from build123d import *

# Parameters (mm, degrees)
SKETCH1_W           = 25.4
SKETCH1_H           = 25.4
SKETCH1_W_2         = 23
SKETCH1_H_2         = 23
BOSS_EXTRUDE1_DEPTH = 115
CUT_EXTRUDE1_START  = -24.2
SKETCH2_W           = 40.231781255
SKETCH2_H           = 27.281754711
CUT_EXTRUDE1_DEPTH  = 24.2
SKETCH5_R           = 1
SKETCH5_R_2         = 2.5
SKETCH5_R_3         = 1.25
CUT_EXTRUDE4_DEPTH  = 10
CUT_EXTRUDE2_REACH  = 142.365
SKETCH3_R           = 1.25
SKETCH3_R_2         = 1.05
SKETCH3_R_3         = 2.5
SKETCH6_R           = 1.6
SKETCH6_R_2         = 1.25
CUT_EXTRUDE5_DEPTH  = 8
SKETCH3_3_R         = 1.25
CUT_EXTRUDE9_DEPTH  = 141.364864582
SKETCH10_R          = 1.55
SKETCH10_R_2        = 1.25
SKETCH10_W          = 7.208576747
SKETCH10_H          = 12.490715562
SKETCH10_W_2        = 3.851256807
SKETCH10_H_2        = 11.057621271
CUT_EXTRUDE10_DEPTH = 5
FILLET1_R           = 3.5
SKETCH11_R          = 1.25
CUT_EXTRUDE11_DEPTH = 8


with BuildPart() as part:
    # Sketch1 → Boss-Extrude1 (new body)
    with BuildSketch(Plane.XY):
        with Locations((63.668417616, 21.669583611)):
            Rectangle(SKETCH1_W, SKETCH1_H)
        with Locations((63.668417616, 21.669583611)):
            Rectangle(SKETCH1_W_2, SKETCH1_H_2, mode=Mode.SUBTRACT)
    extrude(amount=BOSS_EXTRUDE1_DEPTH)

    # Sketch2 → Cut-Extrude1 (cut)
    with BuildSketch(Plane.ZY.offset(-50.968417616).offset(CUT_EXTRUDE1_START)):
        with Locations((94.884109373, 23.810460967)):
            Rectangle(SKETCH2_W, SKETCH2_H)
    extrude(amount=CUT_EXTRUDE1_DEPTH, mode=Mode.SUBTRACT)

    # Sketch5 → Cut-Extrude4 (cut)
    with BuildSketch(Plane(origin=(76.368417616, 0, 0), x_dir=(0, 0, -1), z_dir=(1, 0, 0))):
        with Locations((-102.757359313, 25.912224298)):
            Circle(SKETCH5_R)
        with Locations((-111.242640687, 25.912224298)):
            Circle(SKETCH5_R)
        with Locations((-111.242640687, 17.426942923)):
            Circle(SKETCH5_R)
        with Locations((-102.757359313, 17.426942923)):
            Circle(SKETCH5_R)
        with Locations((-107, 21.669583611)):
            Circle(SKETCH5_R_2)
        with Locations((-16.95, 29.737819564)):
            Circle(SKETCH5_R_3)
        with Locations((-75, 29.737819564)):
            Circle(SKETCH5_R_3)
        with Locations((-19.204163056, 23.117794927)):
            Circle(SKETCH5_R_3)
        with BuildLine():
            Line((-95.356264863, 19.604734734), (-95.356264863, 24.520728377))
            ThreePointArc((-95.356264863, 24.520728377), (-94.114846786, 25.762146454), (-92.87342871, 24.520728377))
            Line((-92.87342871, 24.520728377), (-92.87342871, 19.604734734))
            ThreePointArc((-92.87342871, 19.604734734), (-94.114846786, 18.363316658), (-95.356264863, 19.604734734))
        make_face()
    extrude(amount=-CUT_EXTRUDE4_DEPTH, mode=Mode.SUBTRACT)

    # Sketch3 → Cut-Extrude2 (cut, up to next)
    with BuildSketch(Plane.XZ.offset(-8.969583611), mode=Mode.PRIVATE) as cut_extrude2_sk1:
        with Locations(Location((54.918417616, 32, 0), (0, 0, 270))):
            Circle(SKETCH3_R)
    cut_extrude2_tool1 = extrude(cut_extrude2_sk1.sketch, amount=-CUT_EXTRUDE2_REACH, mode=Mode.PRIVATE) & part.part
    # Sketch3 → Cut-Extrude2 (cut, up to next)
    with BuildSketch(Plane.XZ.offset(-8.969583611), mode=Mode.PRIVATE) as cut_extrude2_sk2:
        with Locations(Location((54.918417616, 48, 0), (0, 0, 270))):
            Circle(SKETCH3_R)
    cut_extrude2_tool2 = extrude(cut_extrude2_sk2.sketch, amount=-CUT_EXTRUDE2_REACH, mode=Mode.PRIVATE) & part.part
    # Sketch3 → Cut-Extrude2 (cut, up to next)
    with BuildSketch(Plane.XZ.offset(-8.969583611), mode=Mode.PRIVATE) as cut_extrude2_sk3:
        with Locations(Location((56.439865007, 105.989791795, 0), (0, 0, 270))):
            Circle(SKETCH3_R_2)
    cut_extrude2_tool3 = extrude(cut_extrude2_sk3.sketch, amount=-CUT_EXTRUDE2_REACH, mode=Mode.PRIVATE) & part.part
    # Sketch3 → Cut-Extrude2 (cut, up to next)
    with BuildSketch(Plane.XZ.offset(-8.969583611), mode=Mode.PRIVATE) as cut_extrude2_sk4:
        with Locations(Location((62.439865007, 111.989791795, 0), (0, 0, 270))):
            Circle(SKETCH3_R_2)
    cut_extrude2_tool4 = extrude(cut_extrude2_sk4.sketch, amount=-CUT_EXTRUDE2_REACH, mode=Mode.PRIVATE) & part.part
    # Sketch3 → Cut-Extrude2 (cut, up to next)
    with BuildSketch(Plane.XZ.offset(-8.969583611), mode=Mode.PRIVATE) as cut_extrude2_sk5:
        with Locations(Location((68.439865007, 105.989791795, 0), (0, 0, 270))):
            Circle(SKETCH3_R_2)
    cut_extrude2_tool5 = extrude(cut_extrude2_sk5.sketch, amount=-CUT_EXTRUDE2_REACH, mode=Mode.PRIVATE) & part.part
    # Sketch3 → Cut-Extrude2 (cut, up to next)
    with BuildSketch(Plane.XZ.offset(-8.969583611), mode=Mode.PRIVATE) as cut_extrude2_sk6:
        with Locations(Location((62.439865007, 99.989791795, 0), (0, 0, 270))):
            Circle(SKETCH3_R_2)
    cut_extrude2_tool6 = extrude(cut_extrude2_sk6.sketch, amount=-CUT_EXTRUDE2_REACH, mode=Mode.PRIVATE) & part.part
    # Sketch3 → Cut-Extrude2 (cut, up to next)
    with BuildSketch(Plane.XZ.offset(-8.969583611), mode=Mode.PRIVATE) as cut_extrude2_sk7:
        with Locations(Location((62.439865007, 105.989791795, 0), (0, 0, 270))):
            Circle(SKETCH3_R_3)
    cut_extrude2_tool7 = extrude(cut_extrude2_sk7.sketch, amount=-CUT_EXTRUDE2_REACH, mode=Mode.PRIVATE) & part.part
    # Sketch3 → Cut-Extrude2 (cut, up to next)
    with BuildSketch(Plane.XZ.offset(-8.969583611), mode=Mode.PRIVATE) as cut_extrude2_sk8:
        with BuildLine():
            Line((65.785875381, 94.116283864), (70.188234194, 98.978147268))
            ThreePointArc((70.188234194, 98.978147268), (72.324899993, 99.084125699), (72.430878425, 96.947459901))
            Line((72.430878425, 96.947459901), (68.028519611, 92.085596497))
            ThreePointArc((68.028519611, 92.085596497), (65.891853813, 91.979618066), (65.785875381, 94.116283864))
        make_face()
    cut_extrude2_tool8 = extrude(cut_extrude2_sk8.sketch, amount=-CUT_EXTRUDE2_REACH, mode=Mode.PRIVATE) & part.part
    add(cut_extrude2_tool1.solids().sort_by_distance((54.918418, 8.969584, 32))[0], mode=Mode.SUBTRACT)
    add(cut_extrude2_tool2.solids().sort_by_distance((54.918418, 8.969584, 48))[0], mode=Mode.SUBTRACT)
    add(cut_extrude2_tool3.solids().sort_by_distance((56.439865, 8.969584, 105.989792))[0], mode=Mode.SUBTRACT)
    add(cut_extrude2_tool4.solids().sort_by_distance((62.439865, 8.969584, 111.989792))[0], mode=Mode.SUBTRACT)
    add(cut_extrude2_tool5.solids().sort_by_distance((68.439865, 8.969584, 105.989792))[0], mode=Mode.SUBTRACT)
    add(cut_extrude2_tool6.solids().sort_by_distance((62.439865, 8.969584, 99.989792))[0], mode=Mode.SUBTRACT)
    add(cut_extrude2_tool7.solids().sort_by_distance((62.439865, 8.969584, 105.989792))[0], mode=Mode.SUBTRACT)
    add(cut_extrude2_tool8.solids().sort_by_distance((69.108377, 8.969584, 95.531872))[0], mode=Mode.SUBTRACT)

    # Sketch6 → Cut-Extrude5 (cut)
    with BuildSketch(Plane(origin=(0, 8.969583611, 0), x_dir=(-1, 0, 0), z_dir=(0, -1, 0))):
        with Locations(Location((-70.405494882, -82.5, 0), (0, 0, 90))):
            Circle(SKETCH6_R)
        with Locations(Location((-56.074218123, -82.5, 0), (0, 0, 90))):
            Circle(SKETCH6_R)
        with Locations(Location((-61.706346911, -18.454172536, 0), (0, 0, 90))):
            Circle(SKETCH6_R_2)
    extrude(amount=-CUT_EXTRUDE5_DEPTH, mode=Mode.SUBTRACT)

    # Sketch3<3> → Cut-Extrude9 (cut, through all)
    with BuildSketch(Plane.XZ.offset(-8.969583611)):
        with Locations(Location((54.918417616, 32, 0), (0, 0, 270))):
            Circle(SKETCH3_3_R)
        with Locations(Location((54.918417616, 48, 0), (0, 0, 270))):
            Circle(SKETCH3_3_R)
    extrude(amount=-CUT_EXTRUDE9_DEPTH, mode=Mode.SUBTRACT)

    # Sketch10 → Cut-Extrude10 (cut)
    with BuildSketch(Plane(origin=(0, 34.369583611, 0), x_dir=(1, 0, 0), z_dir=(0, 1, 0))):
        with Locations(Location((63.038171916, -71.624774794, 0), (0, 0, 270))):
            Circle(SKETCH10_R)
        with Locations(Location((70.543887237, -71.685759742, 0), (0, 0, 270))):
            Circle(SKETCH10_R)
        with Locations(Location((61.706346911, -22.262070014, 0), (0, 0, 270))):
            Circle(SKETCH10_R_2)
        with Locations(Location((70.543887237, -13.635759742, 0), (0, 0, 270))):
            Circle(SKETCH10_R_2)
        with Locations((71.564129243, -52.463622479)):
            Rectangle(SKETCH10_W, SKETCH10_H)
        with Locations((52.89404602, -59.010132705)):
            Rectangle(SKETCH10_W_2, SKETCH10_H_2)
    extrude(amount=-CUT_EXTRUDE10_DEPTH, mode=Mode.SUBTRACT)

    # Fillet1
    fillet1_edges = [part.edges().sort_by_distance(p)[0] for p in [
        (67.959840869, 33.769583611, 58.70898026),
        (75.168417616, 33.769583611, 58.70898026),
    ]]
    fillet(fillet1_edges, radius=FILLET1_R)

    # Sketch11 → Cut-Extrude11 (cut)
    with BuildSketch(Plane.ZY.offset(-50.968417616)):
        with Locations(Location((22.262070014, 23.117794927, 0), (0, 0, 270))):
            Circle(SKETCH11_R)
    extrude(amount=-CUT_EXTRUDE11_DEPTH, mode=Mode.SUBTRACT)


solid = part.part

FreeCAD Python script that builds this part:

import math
import FreeCAD as App
import Part
import Sketcher
Q = App.Units.Quantity


def edges_at(feature, points):
    """Names of the edges that pass closest to the given points."""
    edges = feature.Shape.Edges
    near = lambda p: min(range(len(edges)), key=lambda i: edges[i].distToShape(Part.Vertex(*p))[0])
    return sorted({f"Edge{near(p) + 1}" for p in points})


def add_polygon(sketch, points):
    """Adds a closed chain of lines whose ends are joined by coincident constraints."""
    first, n = sketch.GeometryCount, len(points)
    for a, b in zip(points, points[1:] + points[:1]):
        sketch.addGeometry(Part.LineSegment(App.Vector(*a, 0), App.Vector(*b, 0)), False)
    for i in range(n):
        sketch.addConstraint(Sketcher.Constraint("Coincident", first + i, 2, first + (i + 1) % n, 1))

doc = App.newDocument("Part")
body = doc.addObject("PartDesign::Body", "Body")

# Sketch on XY plane
sketch1 = body.newObject("Sketcher::SketchObject", "Sketch")
sketch1.AttachmentSupport = (doc.getObject("XY_Plane"), [""])
sketch1.MapMode = "FlatFace"
add_polygon(sketch1, [(50.968418, 34.369584), (50.968418, 8.969584), (76.368418, 8.969584), (76.368418, 34.369584)])  # lines 0-3
add_polygon(sketch1, [(75.168418, 10.169584), (52.168418, 10.169584), (52.168418, 33.169584), (75.168418, 33.169584)])  # lines 4-7
sketch1.addConstraint(Sketcher.Constraint("Vertical", 0))
sketch1.addConstraint(Sketcher.Constraint("Horizontal", 1))
sketch1.addConstraint(Sketcher.Constraint("Vertical", 2))
sketch1.addConstraint(Sketcher.Constraint("Horizontal", 3))
sketch1.addConstraint(Sketcher.Constraint("Horizontal", 4))
sketch1.addConstraint(Sketcher.Constraint("Vertical", 5))
sketch1.addConstraint(Sketcher.Constraint("Horizontal", 6))
sketch1.addConstraint(Sketcher.Constraint("Vertical", 7))
sketch1.addConstraint(Sketcher.Constraint("Equal", 3, 0))
sketch1.addConstraint(Sketcher.Constraint("Equal", 6, 5))
sketch1.addConstraint(Sketcher.Constraint("DistanceX", 4, 2, 4, 1, Q("23 mm")))
sketch1.addConstraint(Sketcher.Constraint("DistanceX", 1, 1, 1, 2, Q("25.4 mm")))
sketch1.addConstraint(Sketcher.Constraint("DistanceX", 0, 2, 4, 2, Q("1.2 mm")))
sketch1.addConstraint(Sketcher.Constraint("DistanceY", 0, 2, 4, 2, Q("1.2 mm")))
sketch1.addConstraint(Sketcher.Constraint("DistanceX", -1, 1, 0, 2, Q("50.968418 mm")))
sketch1.addConstraint(Sketcher.Constraint("DistanceY", -1, 1, 0, 2, Q("8.969584 mm")))
pad1 = body.newObject("PartDesign::Pad", "Pad")
pad1.Profile = sketch1
pad1.Length = 115

# Sketch on YZ plane
sketch2 = body.newObject("Sketcher::SketchObject", "Sketch001")
sketch2.AttachmentSupport = (doc.getObject("YZ_Plane"), [""])
sketch2.MapMode = "FlatFace"
sketch2.AttachmentOffset = App.Placement(App.Vector(0, 0, 75.168418), App.Rotation())
add_polygon(sketch2, [(37.451338, 74.768219), (10.169584, 74.768219), (10.169584, 115), (37.451338, 115)])  # lines 0-3
sketch2.addConstraint(Sketcher.Constraint("Horizontal", 0))
sketch2.addConstraint(Sketcher.Constraint("Vertical", 1))
sketch2.addConstraint(Sketcher.Constraint("Horizontal", 2))
sketch2.addConstraint(Sketcher.Constraint("Vertical", 3))
sketch2.addConstraint(Sketcher.Constraint("DistanceY", -1, 1, 1, 2, Q("115 mm")))
sketch2.addConstraint(Sketcher.Constraint("DistanceY", 1, 1, 1, 2, Q("40.231781 mm")))
sketch2.addConstraint(Sketcher.Constraint("DistanceX", 0, 2, 0, 1, Q("27.281755 mm")))
sketch2.addConstraint(Sketcher.Constraint("DistanceX", -1, 1, 2, 2, Q("37.451338 mm")))
pocket1 = body.newObject("PartDesign::Pocket", "Pocket")
pocket1.Profile = sketch2
pocket1.Length = 24.2

# Sketch on YZ plane
sketch3 = body.newObject("Sketcher::SketchObject", "Sketch002")
sketch3.AttachmentSupport = (doc.getObject("YZ_Plane"), [""])
sketch3.MapMode = "FlatFace"
sketch3.AttachmentOffset = App.Placement(App.Vector(0, 0, 76.368418), App.Rotation())
sketch3.addGeometry(Part.Circle(App.Vector(25.912224, 102.757359, 0), App.Vector(0, 0, 1), 1), False)
sketch3.addGeometry(Part.Circle(App.Vector(25.912224, 111.242641, 0), App.Vector(0, 0, 1), 1), False)
sketch3.addGeometry(Part.Circle(App.Vector(17.426943, 111.242641, 0), App.Vector(0, 0, 1), 1), False)
sketch3.addGeometry(Part.Circle(App.Vector(17.426943, 102.757359, 0), App.Vector(0, 0, 1), 1), False)
sketch3.addGeometry(Part.Circle(App.Vector(21.669584, 107, 0), App.Vector(0, 0, 1), 2.5), False)
sketch3.addGeometry(Part.Circle(App.Vector(29.73782, 16.95, 0), App.Vector(0, 0, 1), 1.25), False)
sketch3.addGeometry(Part.Circle(App.Vector(29.73782, 75, 0), App.Vector(0, 0, 1), 1.25), False)
sketch3.addGeometry(Part.Circle(App.Vector(23.117795, 19.204163, 0), App.Vector(0, 0, 1), 1.25), False)
sketch3.addGeometry(Part.LineSegment(App.Vector(24.520728, 95.356265, 0), App.Vector(19.604735, 95.356265, 0)), False)
sketch3.addGeometry(Part.ArcOfCircle(Part.Circle(App.Vector(19.604735, 94.114847, 0), App.Vector(0, 0, 1), 1.241418), math.radians(90), math.radians(270)), False)
sketch3.addGeometry(Part.LineSegment(App.Vector(19.604735, 92.873429, 0), App.Vector(24.520728, 92.873429, 0)), False)
sketch3.addGeometry(Part.ArcOfCircle(Part.Circle(App.Vector(24.520728, 94.114847, 0), App.Vector(0, 0, 1), 1.241418), math.radians(-90), math.radians(90)), False)
sketch3.addConstraint(Sketcher.Constraint("Tangent", 8, 2, 9, 1))
sketch3.addConstraint(Sketcher.Constraint("Tangent", 9, 2, 10, 1))
sketch3.addConstraint(Sketcher.Constraint("Tangent", 10, 2, 11, 1))
sketch3.addConstraint(Sketcher.Constraint("Tangent", 11, 2, 8, 1))
sketch3.addConstraint(Sketcher.Constraint("Horizontal", 8))
sketch3.addConstraint(Sketcher.Constraint("Horizontal", 10))
sketch3.addConstraint(Sketcher.Constraint("Equal", 0, 1))
sketch3.addConstraint(Sketcher.Constraint("Equal", 1, 2))
sketch3.addConstraint(Sketcher.Constraint("Equal", 2, 3))
sketch3.addConstraint(Sketcher.Constraint("Equal", 5, 6))
sketch3.addConstraint(Sketcher.Constraint("Equal", 6, 7))
sketch3.addConstraint(Sketcher.Constraint("Horizontal", 1, 3, 2, 3))
sketch3.addConstraint(Sketcher.Constraint("Horizontal", 0, 3, 3, 3))
sketch3.addConstraint(Sketcher.Constraint("Vertical", 0, 3, 1, 3))
sketch3.addConstraint(Sketcher.Constraint("Vertical", 2, 3, 3, 3))
sketch3.addConstraint(Sketcher.Constraint("Vertical", 5, 3, 6, 3))
sketch3.addConstraint(Sketcher.Constraint("Diameter", 0, Q("2 mm")))
sketch3.addConstraint(Sketcher.Constraint("Diameter", 4, Q("5 mm")))
sketch3.addConstraint(Sketcher.Constraint("Diameter", 5, Q("2.5 mm")))
sketch3.addConstraint(Sketcher.Constraint("DistanceY", -1, 1, 4, 3, Q("107 mm")))
sketch3.addConstraint(Sketcher.Constraint("DistanceY", -1, 1, 6, 3, Q("75 mm")))
sketch3.addConstraint(Sketcher.Constraint("DistanceY", -1, 1, 5, 3, Q("16.95 mm")))
sketch3.addConstraint(Sketcher.Constraint("Radius", 9, Q("1.241418 mm")))
sketch3.addConstraint(Sketcher.Constraint("DistanceX", 8, 2, 8, 1, Q("4.915994 mm")))
sketch3.addConstraint(Sketcher.Constraint("DistanceY", -1, 1, 0, 3, Q("102.757359 mm")))
sketch3.addConstraint(Sketcher.Constraint("DistanceY", -1, 1, 1, 3, Q("111.242641 mm")))
sketch3.addConstraint(Sketcher.Constraint("DistanceX", -1, 1, 5, 3, Q("29.73782 mm")))
sketch3.addConstraint(Sketcher.Constraint("DistanceX", -1, 1, 11, 3, Q("24.520728 mm")))
sketch3.addConstraint(Sketcher.Constraint("DistanceY", -1, 1, 9, 2, Q("92.873429 mm")))
sketch3.addConstraint(Sketcher.Constraint("DistanceX", 2, 3, 1, 3, Q("8.485281 mm")))
sketch3.addConstraint(Sketcher.Constraint("DistanceX", 4, 3, 0, 3, Q("4.242641 mm")))
sketch3.addConstraint(Sketcher.Constraint("DistanceX", 7, 3, 0, 3, Q("2.794429 mm")))
sketch3.addConstraint(Sketcher.Constraint("DistanceX", 3, 3, 9, 3, Q("2.177792 mm")))
sketch3.addConstraint(Sketcher.Constraint("DistanceY", -1, 1, 7, 3, Q("19.204163 mm")))
pocket2 = body.newObject("PartDesign::Pocket", "Pocket001")
pocket2.Profile = sketch3
pocket2.Length = 10

# Sketch on XZ plane
sketch4 = body.newObject("Sketcher::SketchObject", "Sketch003")
sketch4.AttachmentSupport = (doc.getObject("XZ_Plane"), [""])
sketch4.MapMode = "FlatFace"
sketch4.AttachmentOffset = App.Placement(App.Vector(0, 0, -8.969584), App.Rotation())
sketch4.addGeometry(Part.Circle(App.Vector(54.918418, 32, 0), App.Vector(0, 0, 1), 1.25), False)
sketch4.addConstraint(Sketcher.Constraint("Diameter", 0, Q("2.5 mm")))
sketch4.addConstraint(Sketcher.Constraint("DistanceY", -1, 1, 0, 3, Q("32 mm")))
sketch4.addConstraint(Sketcher.Constraint("DistanceX", -1, 1, 0, 3, Q("54.918418 mm")))
pocket3 = body.newObject("PartDesign::Pocket", "Pocket002")
pocket3.Profile = sketch4
pocket3.Type = "UpToFirst"

# Sketch on XZ plane
sketch5 = body.newObject("Sketcher::SketchObject", "Sketch004")
sketch5.AttachmentSupport = (doc.getObject("XZ_Plane"), [""])
sketch5.MapMode = "FlatFace"
sketch5.AttachmentOffset = App.Placement(App.Vector(0, 0, -8.969584), App.Rotation())
sketch5.addGeometry(Part.Circle(App.Vector(54.918418, 48, 0), App.Vector(0, 0, 1), 1.25), False)
sketch5.addConstraint(Sketcher.Constraint("Diameter", 0, Q("2.5 mm")))
sketch5.addConstraint(Sketcher.Constraint("DistanceY", -1, 1, 0, 3, Q("48 mm")))
sketch5.addConstraint(Sketcher.Constraint("DistanceX", -1, 1, 0, 3, Q("54.918418 mm")))
pocket4 = body.newObject("PartDesign::Pocket", "Pocket003")
pocket4.Profile = sketch5
pocket4.Type = "UpToFirst"

# Sketch on XZ plane
sketch6 = body.newObject("Sketcher::SketchObject", "Sketch005")
sketch6.AttachmentSupport = (doc.getObject("XZ_Plane"), [""])
sketch6.MapMode = "FlatFace"
sketch6.AttachmentOffset = App.Placement(App.Vector(0, 0, -8.969584), App.Rotation())
sketch6.addGeometry(Part.Circle(App.Vector(56.439865, 105.989792, 0), App.Vector(0, 0, 1), 1.05), False)
sketch6.addConstraint(Sketcher.Constraint("Diameter", 0, Q("2.1 mm")))
sketch6.addConstraint(Sketcher.Constraint("DistanceY", -1, 1, 0, 3, Q("105.989792 mm")))
sketch6.addConstraint(Sketcher.Constraint("DistanceX", -1, 1, 0, 3, Q("56.439865 mm")))
pocket5 = body.newObject("PartDesign::Pocket", "Pocket004")
pocket5.Profile = sketch6
pocket5.Type = "UpToFirst"

# Sketch on XZ plane
sketch7 = body.newObject("Sketcher::SketchObject", "Sketch006")
sketch7.AttachmentSupport = (doc.getObject("XZ_Plane"), [""])
sketch7.MapMode = "FlatFace"
sketch7.AttachmentOffset = App.Placement(App.Vector(0, 0, -8.969584), App.Rotation())
sketch7.addGeometry(Part.Circle(App.Vector(62.439865, 111.989792, 0), App.Vector(0, 0, 1), 1.05), False)
sketch7.addConstraint(Sketcher.Constraint("Diameter", 0, Q("2.1 mm")))
sketch7.addConstraint(Sketcher.Constraint("DistanceY", -1, 1, 0, 3, Q("111.989792 mm")))
sketch7.addConstraint(Sketcher.Constraint("DistanceX", -1, 1, 0, 3, Q("62.439865 mm")))
pocket6 = body.newObject("PartDesign::Pocket", "Pocket005")
pocket6.Profile = sketch7
pocket6.Type = "UpToFirst"

# Sketch on XZ plane
sketch8 = body.newObject("Sketcher::SketchObject", "Sketch007")
sketch8.AttachmentSupport = (doc.getObject("XZ_Plane"), [""])
sketch8.MapMode = "FlatFace"
sketch8.AttachmentOffset = App.Placement(App.Vector(0, 0, -8.969584), App.Rotation())
sketch8.addGeometry(Part.Circle(App.Vector(68.439865, 105.989792, 0), App.Vector(0, 0, 1), 1.05), False)
sketch8.addConstraint(Sketcher.Constraint("Diameter", 0, Q("2.1 mm")))
sketch8.addConstraint(Sketcher.Constraint("DistanceY", -1, 1, 0, 3, Q("105.989792 mm")))
sketch8.addConstraint(Sketcher.Constraint("DistanceX", -1, 1, 0, 3, Q("68.439865 mm")))
pocket7 = body.newObject("PartDesign::Pocket", "Pocket006")
pocket7.Profile = sketch8
pocket7.Type = "UpToFirst"

# Sketch on XZ plane
sketch9 = body.newObject("Sketcher::SketchObject", "Sketch008")
sketch9.AttachmentSupport = (doc.getObject("XZ_Plane"), [""])
sketch9.MapMode = "FlatFace"
sketch9.AttachmentOffset = App.Placement(App.Vector(0, 0, -8.969584), App.Rotation())
sketch9.addGeometry(Part.Circle(App.Vector(62.439865, 99.989792, 0), App.Vector(0, 0, 1), 1.05), False)
sketch9.addConstraint(Sketcher.Constraint("Diameter", 0, Q("2.1 mm")))
sketch9.addConstraint(Sketcher.Constraint("DistanceY", -1, 1, 0, 3, Q("99.989792 mm")))
sketch9.addConstraint(Sketcher.Constraint("DistanceX", -1, 1, 0, 3, Q("62.439865 mm")))
pocket8 = body.newObject("PartDesign::Pocket", "Pocket007")
pocket8.Profile = sketch9
pocket8.Type = "UpToFirst"

# Sketch on XZ plane
sketch10 = body.newObject("Sketcher::SketchObject", "Sketch009")
sketch10.AttachmentSupport = (doc.getObject("XZ_Plane"), [""])
sketch10.MapMode = "FlatFace"
sketch10.AttachmentOffset = App.Placement(App.Vector(0, 0, -8.969584), App.Rotation())
sketch10.addGeometry(Part.Circle(App.Vector(62.439865, 105.989792, 0), App.Vector(0, 0, 1), 2.5), False)
sketch10.addConstraint(Sketcher.Constraint("Diameter", 0, Q("5 mm")))
sketch10.addConstraint(Sketcher.Constraint("DistanceY", -1, 1, 0, 3, Q("105.989792 mm")))
sketch10.addConstraint(Sketcher.Constraint("DistanceX", -1, 1, 0, 3, Q("62.439865 mm")))
pocket9 = body.newObject("PartDesign::Pocket", "Pocket008")
pocket9.Profile = sketch10
pocket9.Type = "UpToFirst"

# Sketch on XZ plane
sketch11 = body.newObject("Sketcher::SketchObject", "Sketch010")
sketch11.AttachmentSupport = (doc.getObject("XZ_Plane"), [""])
sketch11.MapMode = "FlatFace"
sketch11.AttachmentOffset = App.Placement(App.Vector(0, 0, -8.969584), App.Rotation())
sketch11.addGeometry(Part.LineSegment(App.Vector(70.188234, 98.978147, 0), App.Vector(65.785875, 94.116284, 0)), False)
sketch11.addGeometry(Part.ArcOfCircle(Part.Circle(App.Vector(66.907197, 93.10094, 0), App.Vector(0, 0, 1), 1.512708), math.radians(137.839538), math.radians(317.839538)), False)
sketch11.addGeometry(Part.LineSegment(App.Vector(68.02852, 92.085596, 0), App.Vector(72.430878, 96.94746, 0)), False)
sketch11.addGeometry(Part.ArcOfCircle(Part.Circle(App.Vector(71.309556, 97.962804, 0), App.Vector(0, 0, 1), 1.512708), math.radians(-42.160461), math.radians(137.839538)), False)
sketch11.addConstraint(Sketcher.Constraint("Tangent", 0, 2, 1, 1))
sketch11.addConstraint(Sketcher.Constraint("Tangent", 1, 2, 2, 1))
sketch11.addConstraint(Sketcher.Constraint("Tangent", 2, 2, 3, 1))
sketch11.addConstraint(Sketcher.Constraint("Tangent", 3, 2, 0, 1))
sketch11.addConstraint(Sketcher.Constraint("Equal", 1, 3))
sketch11.addConstraint(Sketcher.Constraint("Radius", 1, Q("1.512708 mm")))
sketch11.addConstraint(Sketcher.Constraint("DistanceY", -1, 1, 1, 3, Q("93.10094 mm")))
sketch11.addConstraint(Sketcher.Constraint("DistanceX", -1, 1, 1, 2, Q("68.02852 mm")))
sketch11.addConstraint(Sketcher.Constraint("DistanceX", -1, 1, 2, 2, Q("72.430878 mm")))
sketch11.addConstraint(Sketcher.Constraint("DistanceY", -1, 1, 2, 2, Q("96.94746 mm")))
pocket10 = body.newObject("PartDesign::Pocket", "Pocket009")
pocket10.Profile = sketch11
pocket10.Type = "UpToFirst"

# Sketch on XZ plane
sketch12 = body.newObject("Sketcher::SketchObject", "Sketch011")
sketch12.AttachmentSupport = (doc.getObject("XZ_Plane"), [""])
sketch12.MapMode = "FlatFace"
sketch12.AttachmentOffset = App.Placement(App.Vector(0, 0, -8.969584), App.Rotation())
sketch12.addGeometry(Part.Circle(App.Vector(70.405495, 82.5, 0), App.Vector(0, 0, 1), 1.6), False)
sketch12.addGeometry(Part.Circle(App.Vector(56.074218, 82.5, 0), App.Vector(0, 0, 1), 1.6), False)
sketch12.addGeometry(Part.Circle(App.Vector(61.706347, 18.454173, 0), App.Vector(0, 0, 1), 1.25), False)
sketch12.addConstraint(Sketcher.Constraint("Equal", 0, 1))
sketch12.addConstraint(Sketcher.Constraint("Horizontal", 0, 3, 1, 3))
sketch12.addConstraint(Sketcher.Constraint("Diameter", 0, Q("3.2 mm")))
sketch12.addConstraint(Sketcher.Constraint("Diameter", 2, Q("2.5 mm")))
sketch12.addConstraint(Sketcher.Constraint("DistanceY", -1, 1, 0, 3, Q("82.5 mm")))
sketch12.addConstraint(Sketcher.Constraint("DistanceX", -1, 1, 1, 3, Q("56.074218 mm")))
sketch12.addConstraint(Sketcher.Constraint("DistanceX", 1, 3, 2, 3, Q("5.632129 mm")))
sketch12.addConstraint(Sketcher.Constraint("DistanceX", -1, 1, 0, 3, Q("70.405495 mm")))
sketch12.addConstraint(Sketcher.Constraint("DistanceY", -1, 1, 2, 3, Q("18.454173 mm")))
pocket11 = body.newObject("PartDesign::Pocket", "Pocket010")
pocket11.Profile = sketch12
pocket11.Length = 8

# Sketch on XZ plane
sketch13 = body.newObject("Sketcher::SketchObject", "Sketch012")
sketch13.AttachmentSupport = (doc.getObject("XZ_Plane"), [""])
sketch13.MapMode = "FlatFace"
sketch13.AttachmentOffset = App.Placement(App.Vector(0, 0, -8.969584), App.Rotation())
sketch13.addGeometry(Part.Circle(App.Vector(54.918418, 32, 0), App.Vector(0, 0, 1), 1.25), False)
sketch13.addGeometry(Part.Circle(App.Vector(54.918418, 48, 0), App.Vector(0, 0, 1), 1.25), False)
sketch13.addConstraint(Sketcher.Constraint("Equal", 0, 1))
sketch13.addConstraint(Sketcher.Constraint("Vertical", 0, 3, 1, 3))
sketch13.addConstraint(Sketcher.Constraint("Diameter", 0, Q("2.5 mm")))
sketch13.addConstraint(Sketcher.Constraint("DistanceY", -1, 1, 0, 3, Q("32 mm")))
sketch13.addConstraint(Sketcher.Constraint("DistanceY", -1, 1, 1, 3, Q("48 mm")))
sketch13.addConstraint(Sketcher.Constraint("DistanceX", -1, 1, 0, 3, Q("54.918418 mm")))
pocket12 = body.newObject("PartDesign::Pocket", "Pocket011")
pocket12.Profile = sketch13
pocket12.Type = "ThroughAll"

# Sketch on XZ plane
sketch14 = body.newObject("Sketcher::SketchObject", "Sketch013")
sketch14.AttachmentSupport = (doc.getObject("XZ_Plane"), [""])
sketch14.MapMode = "FlatFace"
sketch14.AttachmentOffset = App.Placement(App.Vector(0, 0, -34.369584), App.Rotation())
sketch14.addGeometry(Part.Circle(App.Vector(63.038172, 71.624775, 0), App.Vector(0, 0, 1), 1.55), False)  # 0
sketch14.addGeometry(Part.Circle(App.Vector(70.543887, 71.68576, 0), App.Vector(0, 0, 1), 1.55), False)  # 1
sketch14.addGeometry(Part.Circle(App.Vector(61.706347, 22.26207, 0), App.Vector(0, 0, 1), 1.25), False)  # 2
sketch14.addGeometry(Part.Circle(App.Vector(70.543887, 13.63576, 0), App.Vector(0, 0, 1), 1.25), False)  # 3
add_polygon(sketch14, [(67.959841, 46.218265), (67.959841, 58.70898), (75.168418, 58.70898), (75.168418, 46.218265)])  # lines 4-7
add_polygon(sketch14, [(50.968418, 53.481322), (50.968418, 64.538943), (54.819674, 64.538943), (54.819674, 53.481322)])  # lines 8-11
sketch14.addConstraint(Sketcher.Constraint("Vertical", 4))
sketch14.addConstraint(Sketcher.Constraint("Horizontal", 5))
sketch14.addConstraint(Sketcher.Constraint("Vertical", 6))
sketch14.addConstraint(Sketcher.Constraint("Horizontal", 7))
sketch14.addConstraint(Sketcher.Constraint("Vertical", 8))
sketch14.addConstraint(Sketcher.Constraint("Horizontal", 9))
sketch14.addConstraint(Sketcher.Constraint("Vertical", 10))
sketch14.addConstraint(Sketcher.Constraint("Horizontal", 11))
sketch14.addConstraint(Sketcher.Constraint("Equal", 0, 1))
sketch14.addConstraint(Sketcher.Constraint("Equal", 2, 3))
sketch14.addConstraint(Sketcher.Constraint("Vertical", 1, 3, 3, 3))
sketch14.addConstraint(Sketcher.Constraint("Diameter", 0, Q("3.1 mm")))
sketch14.addConstraint(Sketcher.Constraint("Diameter", 2, Q("2.5 mm")))
sketch14.addConstraint(Sketcher.Constraint("DistanceX", 8, 2, 5, 2, Q("24.2 mm")))
sketch14.addConstraint(Sketcher.Constraint("DistanceY", 3, 3, 1, 3, Q("58.05 mm")))
sketch14.addConstraint(Sketcher.Constraint("DistanceY", 8, 1, 8, 2, Q("11.057621 mm")))
sketch14.addConstraint(Sketcher.Constraint("DistanceX", 5, 1, 5, 2, Q("7.208577 mm")))
sketch14.addConstraint(Sketcher.Constraint("DistanceX", 9, 1, 9, 2, Q("3.851257 mm")))
sketch14.addConstraint(Sketcher.Constraint("DistanceY", 4, 1, 4, 2, Q("12.490716 mm")))
sketch14.addConstraint(Sketcher.Constraint("DistanceX", -1, 1, 0, 3, Q("63.038172 mm")))
sketch14.addConstraint(Sketcher.Constraint("DistanceY", -1, 1, 1, 3, Q("71.68576 mm")))
sketch14.addConstraint(Sketcher.Constraint("DistanceY", -1, 1, 2, 3, Q("22.26207 mm")))
sketch14.addConstraint(Sketcher.Constraint("DistanceX", -1, 1, 4, 2, Q("67.959841 mm")))
sketch14.addConstraint(Sketcher.Constraint("DistanceY", -1, 1, 4, 2, Q("58.70898 mm")))
sketch14.addConstraint(Sketcher.Constraint("DistanceX", 2, 3, 1, 3, Q("8.83754 mm")))
sketch14.addConstraint(Sketcher.Constraint("DistanceX", 1, 3, 5, 2, Q("4.62453 mm")))
sketch14.addConstraint(Sketcher.Constraint("DistanceY", 6, 2, 0, 3, Q("25.40651 mm")))
sketch14.addConstraint(Sketcher.Constraint("DistanceY", 8, 2, 0, 3, Q("7.085831 mm")))
pocket13 = body.newObject("PartDesign::Pocket", "Pocket012")
pocket13.Profile = sketch14
pocket13.Length = 5
pocket13.Reversed = True
doc.recompute()

fillet = body.newObject("PartDesign::Fillet", "Fillet")
fillet.Base = (pocket13, edges_at(pocket13, [(67.96, 33.77, 58.709), (75.168, 33.77, 58.709)]))
fillet.Radius = 3.5

# Sketch on YZ plane
sketch15 = body.newObject("Sketcher::SketchObject", "Sketch014")
sketch15.AttachmentSupport = (doc.getObject("YZ_Plane"), [""])
sketch15.MapMode = "FlatFace"
sketch15.AttachmentOffset = App.Placement(App.Vector(0, 0, 50.968418), App.Rotation())
sketch15.addGeometry(Part.Circle(App.Vector(23.117795, 22.26207, 0), App.Vector(0, 0, 1), 1.25), False)
sketch15.addConstraint(Sketcher.Constraint("Diameter", 0, Q("2.5 mm")))
sketch15.addConstraint(Sketcher.Constraint("DistanceY", -1, 1, 0, 3, Q("22.26207 mm")))
sketch15.addConstraint(Sketcher.Constraint("DistanceX", -1, 1, 0, 3, Q("23.117795 mm")))
pocket14 = body.newObject("PartDesign::Pocket", "Pocket013")
pocket14.Profile = sketch15
pocket14.Length = 8
pocket14.Reversed = True

doc.recompute()
